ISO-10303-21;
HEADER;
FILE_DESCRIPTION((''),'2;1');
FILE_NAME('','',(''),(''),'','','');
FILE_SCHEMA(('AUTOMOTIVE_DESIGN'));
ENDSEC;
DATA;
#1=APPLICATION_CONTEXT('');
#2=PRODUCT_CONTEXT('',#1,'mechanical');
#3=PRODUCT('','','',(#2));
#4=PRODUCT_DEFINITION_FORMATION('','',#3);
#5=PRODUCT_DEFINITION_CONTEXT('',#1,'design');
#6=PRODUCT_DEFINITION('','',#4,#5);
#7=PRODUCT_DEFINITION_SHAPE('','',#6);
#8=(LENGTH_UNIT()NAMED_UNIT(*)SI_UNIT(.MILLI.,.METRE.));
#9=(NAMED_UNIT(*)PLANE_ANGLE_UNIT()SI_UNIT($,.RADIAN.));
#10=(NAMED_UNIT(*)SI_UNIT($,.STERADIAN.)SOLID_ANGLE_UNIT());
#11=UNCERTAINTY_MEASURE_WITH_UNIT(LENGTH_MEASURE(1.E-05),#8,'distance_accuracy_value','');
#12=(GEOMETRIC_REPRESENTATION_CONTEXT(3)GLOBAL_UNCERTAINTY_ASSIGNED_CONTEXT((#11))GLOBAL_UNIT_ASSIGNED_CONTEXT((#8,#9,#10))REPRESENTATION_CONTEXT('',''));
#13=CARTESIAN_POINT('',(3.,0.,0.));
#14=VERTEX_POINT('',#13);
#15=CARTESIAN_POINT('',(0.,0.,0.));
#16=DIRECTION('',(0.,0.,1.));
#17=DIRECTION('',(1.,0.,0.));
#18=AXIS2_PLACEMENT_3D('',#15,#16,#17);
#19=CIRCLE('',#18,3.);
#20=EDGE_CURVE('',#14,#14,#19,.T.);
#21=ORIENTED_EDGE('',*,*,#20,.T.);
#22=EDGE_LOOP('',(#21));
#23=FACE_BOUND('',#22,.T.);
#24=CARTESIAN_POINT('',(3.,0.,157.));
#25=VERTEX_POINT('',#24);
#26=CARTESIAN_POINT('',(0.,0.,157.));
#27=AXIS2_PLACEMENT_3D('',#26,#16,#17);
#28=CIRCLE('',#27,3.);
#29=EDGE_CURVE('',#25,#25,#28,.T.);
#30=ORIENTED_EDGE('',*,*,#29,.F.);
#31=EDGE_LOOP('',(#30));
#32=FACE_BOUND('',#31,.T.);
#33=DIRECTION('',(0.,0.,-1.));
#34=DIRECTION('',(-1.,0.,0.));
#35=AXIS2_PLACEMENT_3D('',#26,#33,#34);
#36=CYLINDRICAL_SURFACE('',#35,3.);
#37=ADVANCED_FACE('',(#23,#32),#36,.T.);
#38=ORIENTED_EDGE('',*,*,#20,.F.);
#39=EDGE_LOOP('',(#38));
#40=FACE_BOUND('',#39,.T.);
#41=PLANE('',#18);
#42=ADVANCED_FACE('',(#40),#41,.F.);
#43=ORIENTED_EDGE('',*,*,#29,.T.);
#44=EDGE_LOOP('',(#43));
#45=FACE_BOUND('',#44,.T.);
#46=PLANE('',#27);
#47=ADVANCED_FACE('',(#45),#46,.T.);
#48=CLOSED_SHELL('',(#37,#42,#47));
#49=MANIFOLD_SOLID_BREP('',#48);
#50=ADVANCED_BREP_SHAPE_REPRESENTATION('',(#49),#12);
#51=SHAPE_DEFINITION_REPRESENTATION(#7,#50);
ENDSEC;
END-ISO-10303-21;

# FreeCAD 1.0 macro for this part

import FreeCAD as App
import Part
import Sketcher
from FreeCAD import Vector

doc = App.newDocument("Part")
body = doc.addObject("PartDesign::Body", "Body")

# Sketch on XY plane
sketch1 = doc.addObject("Sketcher::SketchObject", "Sketch")
body.addObject(sketch1)
sketch1.AttachmentSupport = (doc.XY_Plane, [""])
sketch1.MapMode = "FlatFace"
sketch1.addGeometry(Part.Circle(Vector(0, 0, 0), Vector(0, 0, 1), 3), False)
sketch1.addConstraint([
    Sketcher.Constraint("Coincident", 0, 3, -1, 1),
    Sketcher.Constraint("Diameter", 0, 6.0),
])
pad1 = doc.addObject("PartDesign::Pad", "Pad")
body.addObject(pad1)
pad1.Profile = sketch1
pad1.Length = 157

doc.recompute()
